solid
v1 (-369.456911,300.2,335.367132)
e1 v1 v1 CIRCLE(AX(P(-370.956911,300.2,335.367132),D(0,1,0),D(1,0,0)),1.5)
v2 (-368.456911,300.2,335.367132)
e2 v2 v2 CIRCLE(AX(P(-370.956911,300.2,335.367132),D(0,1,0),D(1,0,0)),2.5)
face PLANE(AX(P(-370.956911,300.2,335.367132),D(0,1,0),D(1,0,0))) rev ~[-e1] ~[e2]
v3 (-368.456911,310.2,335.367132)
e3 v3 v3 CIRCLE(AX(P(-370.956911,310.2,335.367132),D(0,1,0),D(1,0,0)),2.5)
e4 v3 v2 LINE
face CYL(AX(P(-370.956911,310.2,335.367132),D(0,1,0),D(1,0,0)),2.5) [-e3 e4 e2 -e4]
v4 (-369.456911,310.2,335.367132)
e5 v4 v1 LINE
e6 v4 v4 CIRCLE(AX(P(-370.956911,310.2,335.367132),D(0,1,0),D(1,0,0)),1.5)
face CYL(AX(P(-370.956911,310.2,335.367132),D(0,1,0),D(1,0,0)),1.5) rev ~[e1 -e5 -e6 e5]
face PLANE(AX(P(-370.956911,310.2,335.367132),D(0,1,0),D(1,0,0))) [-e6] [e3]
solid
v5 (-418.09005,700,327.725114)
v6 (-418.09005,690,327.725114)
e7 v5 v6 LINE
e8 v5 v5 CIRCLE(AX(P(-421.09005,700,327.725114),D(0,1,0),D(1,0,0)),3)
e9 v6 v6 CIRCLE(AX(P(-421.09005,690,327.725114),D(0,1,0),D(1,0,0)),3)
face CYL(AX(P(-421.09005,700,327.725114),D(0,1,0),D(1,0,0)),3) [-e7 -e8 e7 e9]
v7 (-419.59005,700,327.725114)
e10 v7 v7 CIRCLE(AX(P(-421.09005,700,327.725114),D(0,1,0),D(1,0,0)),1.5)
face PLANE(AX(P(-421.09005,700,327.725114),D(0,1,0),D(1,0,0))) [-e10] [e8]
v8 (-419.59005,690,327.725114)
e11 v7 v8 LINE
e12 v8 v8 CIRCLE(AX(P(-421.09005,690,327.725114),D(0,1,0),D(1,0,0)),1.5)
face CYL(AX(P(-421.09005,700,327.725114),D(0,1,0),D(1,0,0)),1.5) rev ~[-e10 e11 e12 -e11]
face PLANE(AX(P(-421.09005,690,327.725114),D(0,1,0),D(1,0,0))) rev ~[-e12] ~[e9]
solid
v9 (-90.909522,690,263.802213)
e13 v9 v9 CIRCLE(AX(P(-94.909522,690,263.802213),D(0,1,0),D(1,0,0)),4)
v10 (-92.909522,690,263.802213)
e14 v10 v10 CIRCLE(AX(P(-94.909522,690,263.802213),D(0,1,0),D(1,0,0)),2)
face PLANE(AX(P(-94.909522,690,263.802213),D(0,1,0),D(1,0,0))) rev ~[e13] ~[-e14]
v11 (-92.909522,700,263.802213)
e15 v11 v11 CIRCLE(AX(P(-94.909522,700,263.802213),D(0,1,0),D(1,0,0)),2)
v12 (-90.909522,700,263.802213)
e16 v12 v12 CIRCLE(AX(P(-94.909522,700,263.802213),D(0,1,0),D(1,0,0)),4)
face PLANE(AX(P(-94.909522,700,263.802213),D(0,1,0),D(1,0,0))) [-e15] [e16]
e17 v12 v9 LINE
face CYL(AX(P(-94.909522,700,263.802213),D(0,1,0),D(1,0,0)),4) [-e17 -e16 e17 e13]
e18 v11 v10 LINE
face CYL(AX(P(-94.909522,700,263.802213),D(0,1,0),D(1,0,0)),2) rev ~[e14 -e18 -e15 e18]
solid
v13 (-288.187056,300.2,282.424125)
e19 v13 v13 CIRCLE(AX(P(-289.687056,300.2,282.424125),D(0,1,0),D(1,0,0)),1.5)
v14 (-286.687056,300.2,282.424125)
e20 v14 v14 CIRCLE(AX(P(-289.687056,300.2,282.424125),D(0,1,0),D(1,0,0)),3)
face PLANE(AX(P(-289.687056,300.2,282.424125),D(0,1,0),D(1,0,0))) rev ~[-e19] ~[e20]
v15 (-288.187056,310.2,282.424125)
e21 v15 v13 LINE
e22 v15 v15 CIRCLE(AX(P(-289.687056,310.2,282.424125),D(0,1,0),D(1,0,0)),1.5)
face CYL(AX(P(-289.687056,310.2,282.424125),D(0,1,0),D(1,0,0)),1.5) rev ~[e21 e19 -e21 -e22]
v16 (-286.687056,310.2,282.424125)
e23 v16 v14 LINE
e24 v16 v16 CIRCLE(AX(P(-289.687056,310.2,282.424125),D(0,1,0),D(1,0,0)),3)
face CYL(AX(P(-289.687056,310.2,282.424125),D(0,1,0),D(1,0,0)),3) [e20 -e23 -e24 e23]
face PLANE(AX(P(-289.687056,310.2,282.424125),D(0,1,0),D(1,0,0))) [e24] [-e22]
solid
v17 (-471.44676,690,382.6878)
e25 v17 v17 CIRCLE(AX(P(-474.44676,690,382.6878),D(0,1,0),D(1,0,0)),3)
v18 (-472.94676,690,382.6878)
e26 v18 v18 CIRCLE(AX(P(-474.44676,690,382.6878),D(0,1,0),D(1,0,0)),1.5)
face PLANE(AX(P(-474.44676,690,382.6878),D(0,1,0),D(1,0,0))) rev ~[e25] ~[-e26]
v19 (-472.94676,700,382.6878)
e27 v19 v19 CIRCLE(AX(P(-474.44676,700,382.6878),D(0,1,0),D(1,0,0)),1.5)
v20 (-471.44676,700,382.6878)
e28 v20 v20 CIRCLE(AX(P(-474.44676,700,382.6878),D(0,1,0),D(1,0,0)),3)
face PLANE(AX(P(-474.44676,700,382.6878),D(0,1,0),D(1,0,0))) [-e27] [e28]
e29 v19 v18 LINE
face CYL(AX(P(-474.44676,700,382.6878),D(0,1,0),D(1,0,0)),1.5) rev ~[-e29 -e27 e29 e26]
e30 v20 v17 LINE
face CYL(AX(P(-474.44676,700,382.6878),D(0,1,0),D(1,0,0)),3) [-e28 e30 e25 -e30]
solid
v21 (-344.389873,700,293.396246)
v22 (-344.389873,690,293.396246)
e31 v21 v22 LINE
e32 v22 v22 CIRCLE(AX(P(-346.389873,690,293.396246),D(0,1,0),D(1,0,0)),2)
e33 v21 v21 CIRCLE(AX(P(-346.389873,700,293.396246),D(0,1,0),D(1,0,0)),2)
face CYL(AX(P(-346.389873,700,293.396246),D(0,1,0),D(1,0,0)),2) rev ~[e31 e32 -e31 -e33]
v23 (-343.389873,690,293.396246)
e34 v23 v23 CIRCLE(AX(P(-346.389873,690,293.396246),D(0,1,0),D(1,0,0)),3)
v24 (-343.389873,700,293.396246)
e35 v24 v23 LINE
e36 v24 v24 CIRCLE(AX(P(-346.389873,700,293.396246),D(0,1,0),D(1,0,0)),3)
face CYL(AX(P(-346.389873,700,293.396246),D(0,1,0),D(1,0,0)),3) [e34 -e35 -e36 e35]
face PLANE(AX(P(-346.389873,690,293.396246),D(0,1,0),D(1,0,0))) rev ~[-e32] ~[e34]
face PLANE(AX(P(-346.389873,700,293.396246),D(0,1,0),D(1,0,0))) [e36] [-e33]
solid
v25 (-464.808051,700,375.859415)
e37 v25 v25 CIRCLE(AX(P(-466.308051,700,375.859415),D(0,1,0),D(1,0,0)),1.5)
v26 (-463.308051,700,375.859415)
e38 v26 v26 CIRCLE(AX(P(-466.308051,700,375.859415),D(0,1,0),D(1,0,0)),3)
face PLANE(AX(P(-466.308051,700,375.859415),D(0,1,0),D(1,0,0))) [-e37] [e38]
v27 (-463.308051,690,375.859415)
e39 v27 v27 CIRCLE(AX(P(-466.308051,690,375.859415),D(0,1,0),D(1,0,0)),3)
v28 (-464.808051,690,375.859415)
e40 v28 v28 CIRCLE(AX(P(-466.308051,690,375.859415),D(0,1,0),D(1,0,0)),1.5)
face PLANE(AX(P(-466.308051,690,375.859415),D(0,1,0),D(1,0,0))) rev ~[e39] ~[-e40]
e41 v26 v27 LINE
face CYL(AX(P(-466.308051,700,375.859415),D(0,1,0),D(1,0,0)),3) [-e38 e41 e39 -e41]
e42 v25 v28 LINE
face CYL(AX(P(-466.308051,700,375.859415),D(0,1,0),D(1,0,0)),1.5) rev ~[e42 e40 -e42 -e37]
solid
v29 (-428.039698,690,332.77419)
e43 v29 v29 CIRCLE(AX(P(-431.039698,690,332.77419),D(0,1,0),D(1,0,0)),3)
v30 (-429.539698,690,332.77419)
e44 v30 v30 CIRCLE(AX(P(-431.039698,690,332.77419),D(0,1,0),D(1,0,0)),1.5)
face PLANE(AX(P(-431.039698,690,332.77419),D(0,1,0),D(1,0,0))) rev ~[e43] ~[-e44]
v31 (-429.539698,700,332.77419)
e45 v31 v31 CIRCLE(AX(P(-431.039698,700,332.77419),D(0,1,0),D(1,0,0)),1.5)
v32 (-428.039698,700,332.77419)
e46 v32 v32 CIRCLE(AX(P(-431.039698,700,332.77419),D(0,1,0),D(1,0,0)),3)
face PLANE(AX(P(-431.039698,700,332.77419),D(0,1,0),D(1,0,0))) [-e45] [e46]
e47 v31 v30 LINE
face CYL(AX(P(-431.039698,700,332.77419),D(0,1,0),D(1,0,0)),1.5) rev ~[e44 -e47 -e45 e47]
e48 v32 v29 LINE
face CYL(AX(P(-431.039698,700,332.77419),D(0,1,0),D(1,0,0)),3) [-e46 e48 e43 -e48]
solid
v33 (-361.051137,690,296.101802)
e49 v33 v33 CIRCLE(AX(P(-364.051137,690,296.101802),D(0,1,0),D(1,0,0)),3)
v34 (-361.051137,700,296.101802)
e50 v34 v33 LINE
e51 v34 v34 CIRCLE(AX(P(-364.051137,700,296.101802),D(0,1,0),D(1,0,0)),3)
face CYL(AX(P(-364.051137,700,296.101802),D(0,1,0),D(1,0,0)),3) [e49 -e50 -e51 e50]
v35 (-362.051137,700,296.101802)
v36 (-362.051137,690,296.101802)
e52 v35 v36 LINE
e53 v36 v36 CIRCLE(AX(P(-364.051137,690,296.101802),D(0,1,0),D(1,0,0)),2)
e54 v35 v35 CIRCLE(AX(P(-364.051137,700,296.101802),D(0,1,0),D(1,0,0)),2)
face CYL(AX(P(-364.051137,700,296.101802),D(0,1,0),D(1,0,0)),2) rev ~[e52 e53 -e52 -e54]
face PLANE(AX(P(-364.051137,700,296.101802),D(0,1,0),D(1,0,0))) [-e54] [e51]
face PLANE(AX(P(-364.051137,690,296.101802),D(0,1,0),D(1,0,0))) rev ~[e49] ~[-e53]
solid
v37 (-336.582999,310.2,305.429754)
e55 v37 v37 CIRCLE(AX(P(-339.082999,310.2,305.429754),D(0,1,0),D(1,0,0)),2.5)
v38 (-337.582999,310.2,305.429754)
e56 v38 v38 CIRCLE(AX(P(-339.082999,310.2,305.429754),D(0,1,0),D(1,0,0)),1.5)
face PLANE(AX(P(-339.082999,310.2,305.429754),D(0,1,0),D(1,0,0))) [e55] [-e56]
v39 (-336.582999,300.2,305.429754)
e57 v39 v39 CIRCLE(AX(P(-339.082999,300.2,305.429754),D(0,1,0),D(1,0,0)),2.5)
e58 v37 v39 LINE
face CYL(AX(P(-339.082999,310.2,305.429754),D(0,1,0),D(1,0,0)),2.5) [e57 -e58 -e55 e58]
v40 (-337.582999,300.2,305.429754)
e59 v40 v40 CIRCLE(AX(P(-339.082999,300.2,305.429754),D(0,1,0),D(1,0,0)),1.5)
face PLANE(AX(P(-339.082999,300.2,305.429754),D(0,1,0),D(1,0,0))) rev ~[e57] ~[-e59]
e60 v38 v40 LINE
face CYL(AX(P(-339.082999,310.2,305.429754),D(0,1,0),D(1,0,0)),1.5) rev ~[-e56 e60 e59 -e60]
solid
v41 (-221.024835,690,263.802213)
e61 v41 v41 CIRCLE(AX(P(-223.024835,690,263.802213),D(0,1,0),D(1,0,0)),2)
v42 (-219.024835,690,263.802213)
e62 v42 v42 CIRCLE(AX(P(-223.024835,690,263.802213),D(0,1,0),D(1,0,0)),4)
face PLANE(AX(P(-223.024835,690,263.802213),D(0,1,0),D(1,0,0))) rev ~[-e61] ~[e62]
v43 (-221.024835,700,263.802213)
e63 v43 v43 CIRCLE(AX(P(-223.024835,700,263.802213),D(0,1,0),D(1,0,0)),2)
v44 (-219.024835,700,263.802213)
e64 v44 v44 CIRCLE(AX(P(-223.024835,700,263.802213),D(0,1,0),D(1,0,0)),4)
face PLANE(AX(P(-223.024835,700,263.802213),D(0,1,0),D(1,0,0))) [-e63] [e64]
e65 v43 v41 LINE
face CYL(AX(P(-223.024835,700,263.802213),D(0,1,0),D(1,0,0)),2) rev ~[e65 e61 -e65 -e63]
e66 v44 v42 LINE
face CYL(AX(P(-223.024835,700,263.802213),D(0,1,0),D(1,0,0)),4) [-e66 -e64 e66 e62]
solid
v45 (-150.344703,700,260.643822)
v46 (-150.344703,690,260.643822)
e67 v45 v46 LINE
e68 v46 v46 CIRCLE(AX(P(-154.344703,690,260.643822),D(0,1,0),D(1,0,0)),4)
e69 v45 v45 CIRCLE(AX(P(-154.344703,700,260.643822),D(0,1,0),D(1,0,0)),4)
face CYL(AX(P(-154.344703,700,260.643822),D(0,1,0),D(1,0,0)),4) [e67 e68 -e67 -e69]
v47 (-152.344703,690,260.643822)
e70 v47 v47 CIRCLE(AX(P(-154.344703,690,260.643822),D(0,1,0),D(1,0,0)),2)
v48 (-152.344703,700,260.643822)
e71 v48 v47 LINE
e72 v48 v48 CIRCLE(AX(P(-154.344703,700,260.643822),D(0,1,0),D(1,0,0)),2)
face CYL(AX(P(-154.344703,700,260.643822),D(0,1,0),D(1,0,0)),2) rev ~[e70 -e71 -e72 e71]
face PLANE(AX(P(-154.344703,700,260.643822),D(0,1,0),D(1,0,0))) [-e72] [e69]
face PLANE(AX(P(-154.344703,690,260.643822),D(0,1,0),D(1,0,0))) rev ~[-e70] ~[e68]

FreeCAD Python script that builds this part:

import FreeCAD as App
import Part
import Sketcher
from FreeCAD import Vector
Q = App.Units.Quantity

doc = App.newDocument("Part")
body = doc.addObject("PartDesign::Body", "Body")

# Sketch on XZ plane
sketch1 = body.newObject("Sketcher::SketchObject", "Sketch")
sketch1.AttachmentSupport = (doc.getObject("XZ_Plane"), [""])
sketch1.MapMode = "FlatFace"
sketch1.AttachmentOffset = App.Placement(Vector(0, 0, -700), App.Rotation())
sketch1.addGeometry([
    Part.Circle(Vector(-474.4, 382.7, 0), Vector(0, 0, 1), 3),
    Part.Circle(Vector(-474.4, 382.7, 0), Vector(0, 0, 1), 1.5),
], False)
sketch1.addConstraint([
    Sketcher.Constraint("Coincident", 1, 3, 0, 3),
    Sketcher.Constraint("Diameter", 0, Q("6 mm")),
    Sketcher.Constraint("Diameter", 1, Q("3 mm")),
    Sketcher.Constraint("DistanceY", -1, 1, 0, 3, Q("382.6878 mm")),
    Sketcher.Constraint("DistanceX", 0, 3, -1, 1, Q("474.44676 mm")),
])
pad1 = body.newObject("PartDesign::Pad", "Pad")
pad1.Profile = sketch1
pad1.Length = 10
body2 = doc.addObject("PartDesign::Body", "Body001")

# Sketch on XZ plane
sketch2 = body2.newObject("Sketcher::SketchObject", "Sketch001")
sketch2.AttachmentSupport = (doc.getObject("XZ_Plane001"), [""])
sketch2.MapMode = "FlatFace"
sketch2.AttachmentOffset = App.Placement(Vector(0, 0, -700), App.Rotation())
sketch2.addGeometry([
    Part.Circle(Vector(-466.3, 375.9, 0), Vector(0, 0, 1), 3),
    Part.Circle(Vector(-466.3, 375.9, 0), Vector(0, 0, 1), 1.5),
], False)
sketch2.addConstraint([
    Sketcher.Constraint("Coincident", 1, 3, 0, 3),
    Sketcher.Constraint("Diameter", 0, Q("6 mm")),
    Sketcher.Constraint("Diameter", 1, Q("3 mm")),
    Sketcher.Constraint("DistanceX", 0, 3, -1, 1, Q("466.308051 mm")),
    Sketcher.Constraint("DistanceY", -1, 1, 0, 3, Q("375.859415 mm")),
])
pad2 = body2.newObject("PartDesign::Pad", "Pad001")
pad2.Profile = sketch2
pad2.Length = 10
body3 = doc.addObject("PartDesign::Body", "Body002")

# Sketch on XZ plane
sketch3 = body3.newObject("Sketcher::SketchObject", "Sketch002")
sketch3.AttachmentSupport = (doc.getObject("XZ_Plane002"), [""])
sketch3.MapMode = "FlatFace"
sketch3.AttachmentOffset = App.Placement(Vector(0, 0, -700), App.Rotation())
sketch3.addGeometry([
    Part.Circle(Vector(-431, 332.8, 0), Vector(0, 0, 1), 3),
    Part.Circle(Vector(-431, 332.8, 0), Vector(0, 0, 1), 1.5),
], False)
sketch3.addConstraint([
    Sketcher.Constraint("Coincident", 1, 3, 0, 3),
    Sketcher.Constraint("Diameter", 0, Q("6 mm")),
    Sketcher.Constraint("Diameter", 1, Q("3 mm")),
    Sketcher.Constraint("DistanceX", 0, 3, -1, 1, Q("431.039698 mm")),
    Sketcher.Constraint("DistanceY", -1, 1, 0, 3, Q("332.77419 mm")),
])
pad3 = body3.newObject("PartDesign::Pad", "Pad002")
pad3.Profile = sketch3
pad3.Length = 10
body4 = doc.addObject("PartDesign::Body", "Body003")

# Sketch on XZ plane
sketch4 = body4.newObject("Sketcher::SketchObject", "Sketch003")
sketch4.AttachmentSupport = (doc.getObject("XZ_Plane003"), [""])
sketch4.MapMode = "FlatFace"
sketch4.AttachmentOffset = App.Placement(Vector(0, 0, -700), App.Rotation())
sketch4.addGeometry([
    Part.Circle(Vector(-421.1, 327.7, 0), Vector(0, 0, 1), 3),
    Part.Circle(Vector(-421.1, 327.7, 0), Vector(0, 0, 1), 1.5),
], False)
sketch4.addConstraint([
    Sketcher.Constraint("Coincident", 1, 3, 0, 3),
    Sketcher.Constraint("Diameter", 0, Q("6 mm")),
    Sketcher.Constraint("Diameter", 1, Q("3 mm")),
    Sketcher.Constraint("DistanceX", 0, 3, -1, 1, Q("421.09005 mm")),
    Sketcher.Constraint("DistanceY", -1, 1, 0, 3, Q("327.725114 mm")),
])
pad4 = body4.newObject("PartDesign::Pad", "Pad003")
pad4.Profile = sketch4
pad4.Length = 10
body5 = doc.addObject("PartDesign::Body", "Body004")

# Sketch on XZ plane
sketch5 = body5.newObject("Sketcher::SketchObject", "Sketch004")
sketch5.AttachmentSupport = (doc.getObject("XZ_Plane004"), [""])
sketch5.MapMode = "FlatFace"
sketch5.AttachmentOffset = App.Placement(Vector(0, 0, -700), App.Rotation())
sketch5.addGeometry([
    Part.Circle(Vector(-364.1, 296.1, 0), Vector(0, 0, 1), 3),
    Part.Circle(Vector(-364.1, 296.1, 0), Vector(0, 0, 1), 2),
], False)
sketch5.addConstraint([
    Sketcher.Constraint("Coincident", 1, 3, 0, 3),
    Sketcher.Constraint("Diameter", 0, Q("6 mm")),
    Sketcher.Constraint("Diameter", 1, Q("4 mm")),
    Sketcher.Constraint("DistanceY", -1, 1, 0, 3, Q("296.101802 mm")),
    Sketcher.Constraint("DistanceX", 0, 3, -1, 1, Q("364.051137 mm")),
])
pad5 = body5.newObject("PartDesign::Pad", "Pad004")
pad5.Profile = sketch5
pad5.Length = 10
body6 = doc.addObject("PartDesign::Body", "Body005")

# Sketch on XZ plane
sketch6 = body6.newObject("Sketcher::SketchObject", "Sketch005")
sketch6.AttachmentSupport = (doc.getObject("XZ_Plane005"), [""])
sketch6.MapMode = "FlatFace"
sketch6.AttachmentOffset = App.Placement(Vector(0, 0, -700), App.Rotation())
sketch6.addGeometry([
    Part.Circle(Vector(-346.4, 293.4, 0), Vector(0, 0, 1), 3),
    Part.Circle(Vector(-346.4, 293.4, 0), Vector(0, 0, 1), 2),
], False)
sketch6.addConstraint([
    Sketcher.Constraint("Coincident", 1, 3, 0, 3),
    Sketcher.Constraint("Diameter", 0, Q("6 mm")),
    Sketcher.Constraint("Diameter", 1, Q("4 mm")),
    Sketcher.Constraint("DistanceX", 0, 3, -1, 1, Q("346.389873 mm")),
    Sketcher.Constraint("DistanceY", -1, 1, 0, 3, Q("293.396246 mm")),
])
pad6 = body6.newObject("PartDesign::Pad", "Pad005")
pad6.Profile = sketch6
pad6.Length = 10
body7 = doc.addObject("PartDesign::Body", "Body006")

# Sketch on XZ plane
sketch7 = body7.newObject("Sketcher::SketchObject", "Sketch006")
sketch7.AttachmentSupport = (doc.getObject("XZ_Plane006"), [""])
sketch7.MapMode = "FlatFace"
sketch7.AttachmentOffset = App.Placement(Vector(0, 0, -700), App.Rotation())
sketch7.addGeometry([
    Part.Circle(Vector(-223, 263.8, 0), Vector(0, 0, 1), 4),
    Part.Circle(Vector(-223, 263.8, 0), Vector(0, 0, 1), 2),
], False)
sketch7.addConstraint([
    Sketcher.Constraint("Coincident", 1, 3, 0, 3),
    Sketcher.Constraint("Diameter", 0, Q("8 mm")),
    Sketcher.Constraint("Diameter", 1, Q("4 mm")),
    Sketcher.Constraint("DistanceX", 0, 3, -1, 1, Q("223.024835 mm")),
    Sketcher.Constraint("DistanceY", -1, 1, 0, 3, Q("263.802213 mm")),
])
pad7 = body7.newObject("PartDesign::Pad", "Pad006")
pad7.Profile = sketch7
pad7.Length = 10
body8 = doc.addObject("PartDesign::Body", "Body007")

# Sketch on XZ plane
sketch8 = body8.newObject("Sketcher::SketchObject", "Sketch007")
sketch8.AttachmentSupport = (doc.getObject("XZ_Plane007"), [""])
sketch8.MapMode = "FlatFace"
sketch8.AttachmentOffset = App.Placement(Vector(0, 0, -700), App.Rotation())
sketch8.addGeometry([
    Part.Circle(Vector(-154.3, 260.6, 0), Vector(0, 0, 1), 4),
    Part.Circle(Vector(-154.3, 260.6, 0), Vector(0, 0, 1), 2),
], False)
sketch8.addConstraint([
    Sketcher.Constraint("Coincident", 1, 3, 0, 3),
    Sketcher.Constraint("Diameter", 0, Q("8 mm")),
    Sketcher.Constraint("Diameter", 1, Q("4 mm")),
    Sketcher.Constraint("DistanceY", -1, 1, 0, 3, Q("260.643822 mm")),
    Sketcher.Constraint("DistanceX", 0, 3, -1, 1, Q("154.344703 mm")),
])
pad8 = body8.newObject("PartDesign::Pad", "Pad007")
pad8.Profile = sketch8
pad8.Length = 10
body9 = doc.addObject("PartDesign::Body", "Body008")

# Sketch on XZ plane
sketch9 = body9.newObject("Sketcher::SketchObject", "Sketch008")
sketch9.AttachmentSupport = (doc.getObject("XZ_Plane008"), [""])
sketch9.MapMode = "FlatFace"
sketch9.AttachmentOffset = App.Placement(Vector(0, 0, -700), App.Rotation())
sketch9.addGeometry([
    Part.Circle(Vector(-94.9, 263.8, 0), Vector(0, 0, 1), 4),
    Part.Circle(Vector(-94.9, 263.8, 0), Vector(0, 0, 1), 2),
], False)
sketch9.addConstraint([
    Sketcher.Constraint("Coincident", 1, 3, 0, 3),
    Sketcher.Constraint("Diameter", 0, Q("8 mm")),
    Sketcher.Constraint("Diameter", 1, Q("4 mm")),
    Sketcher.Constraint("DistanceX", 0, 3, -1, 1, Q("94.909522 mm")),
    Sketcher.Constraint("DistanceY", -1, 1, 0, 3, Q("263.802213 mm")),
])
pad9 = body9.newObject("PartDesign::Pad", "Pad008")
pad9.Profile = sketch9
pad9.Length = 10
body10 = doc.addObject("PartDesign::Body", "Body009")

# Sketch on XZ plane
sketch10 = body10.newObject("Sketcher::SketchObject", "Sketch009")
sketch10.AttachmentSupport = (doc.getObject("XZ_Plane009"), [""])
sketch10.MapMode = "FlatFace"
sketch10.AttachmentOffset = App.Placement(Vector(0, 0, -310.2), App.Rotation())
sketch10.addGeometry([
    Part.Circle(Vector(-371, 335.4, 0), Vector(0, 0, 1), 2.5),
    Part.Circle(Vector(-371, 335.4, 0), Vector(0, 0, 1), 1.5),
], False)
sketch10.addConstraint([
    Sketcher.Constraint("Coincident", 1, 3, 0, 3),
    Sketcher.Constraint("Diameter", 0, Q("5 mm")),
    Sketcher.Constraint("Diameter", 1, Q("3 mm")),
    Sketcher.Constraint("DistanceX", 0, 3, -1, 1, Q("370.956911 mm")),
    Sketcher.Constraint("DistanceY", -1, 1, 0, 3, Q("335.367132 mm")),
])
pad10 = body10.newObject("PartDesign::Pad", "Pad009")
pad10.Profile = sketch10
pad10.Length = 10
body11 = doc.addObject("PartDesign::Body", "Body010")

# Sketch on XZ plane
sketch11 = body11.newObject("Sketcher::SketchObject", "Sketch010")
sketch11.AttachmentSupport = (doc.getObject("XZ_Plane010"), [""])
sketch11.MapMode = "FlatFace"
sketch11.AttachmentOffset = App.Placement(Vector(0, 0, -310.2), App.Rotation())
sketch11.addGeometry([
    Part.Circle(Vector(-339.1, 305.4, 0), Vector(0, 0, 1), 2.5),
    Part.Circle(Vector(-339.1, 305.4, 0), Vector(0, 0, 1), 1.5),
], False)
sketch11.addConstraint([
    Sketcher.Constraint("Coincident", 1, 3, 0, 3),
    Sketcher.Constraint("Diameter", 0, Q("5 mm")),
    Sketcher.Constraint("Diameter", 1, Q("3 mm")),
    Sketcher.Constraint("DistanceX", 0, 3, -1, 1, Q("339.082999 mm")),
    Sketcher.Constraint("DistanceY", -1, 1, 0, 3, Q("305.429754 mm")),
])
pad11 = body11.newObject("PartDesign::Pad", "Pad010")
pad11.Profile = sketch11
pad11.Length = 10
body12 = doc.addObject("PartDesign::Body", "Body011")

# Sketch on XZ plane
sketch12 = body12.newObject("Sketcher::SketchObject", "Sketch011")
sketch12.AttachmentSupport = (doc.getObject("XZ_Plane011"), [""])
sketch12.MapMode = "FlatFace"
sketch12.AttachmentOffset = App.Placement(Vector(0, 0, -310.2), App.Rotation())
sketch12.addGeometry([
    Part.Circle(Vector(-289.7, 282.4, 0), Vector(0, 0, 1), 3),
    Part.Circle(Vector(-289.7, 282.4, 0), Vector(0, 0, 1), 1.5),
], False)
sketch12.addConstraint([
    Sketcher.Constraint("Coincident", 1, 3, 0, 3),
    Sketcher.Constraint("Diameter", 0, Q("6 mm")),
    Sketcher.Constraint("Diameter", 1, Q("3 mm")),
    Sketcher.Constraint("DistanceX", 0, 3, -1, 1, Q("289.687056 mm")),
    Sketcher.Constraint("DistanceY", -1, 1, 0, 3, Q("282.424125 mm")),
])
pad12 = body12.newObject("PartDesign::Pad", "Pad011")
pad12.Profile = sketch12
pad12.Length = 10

doc.recompute()
